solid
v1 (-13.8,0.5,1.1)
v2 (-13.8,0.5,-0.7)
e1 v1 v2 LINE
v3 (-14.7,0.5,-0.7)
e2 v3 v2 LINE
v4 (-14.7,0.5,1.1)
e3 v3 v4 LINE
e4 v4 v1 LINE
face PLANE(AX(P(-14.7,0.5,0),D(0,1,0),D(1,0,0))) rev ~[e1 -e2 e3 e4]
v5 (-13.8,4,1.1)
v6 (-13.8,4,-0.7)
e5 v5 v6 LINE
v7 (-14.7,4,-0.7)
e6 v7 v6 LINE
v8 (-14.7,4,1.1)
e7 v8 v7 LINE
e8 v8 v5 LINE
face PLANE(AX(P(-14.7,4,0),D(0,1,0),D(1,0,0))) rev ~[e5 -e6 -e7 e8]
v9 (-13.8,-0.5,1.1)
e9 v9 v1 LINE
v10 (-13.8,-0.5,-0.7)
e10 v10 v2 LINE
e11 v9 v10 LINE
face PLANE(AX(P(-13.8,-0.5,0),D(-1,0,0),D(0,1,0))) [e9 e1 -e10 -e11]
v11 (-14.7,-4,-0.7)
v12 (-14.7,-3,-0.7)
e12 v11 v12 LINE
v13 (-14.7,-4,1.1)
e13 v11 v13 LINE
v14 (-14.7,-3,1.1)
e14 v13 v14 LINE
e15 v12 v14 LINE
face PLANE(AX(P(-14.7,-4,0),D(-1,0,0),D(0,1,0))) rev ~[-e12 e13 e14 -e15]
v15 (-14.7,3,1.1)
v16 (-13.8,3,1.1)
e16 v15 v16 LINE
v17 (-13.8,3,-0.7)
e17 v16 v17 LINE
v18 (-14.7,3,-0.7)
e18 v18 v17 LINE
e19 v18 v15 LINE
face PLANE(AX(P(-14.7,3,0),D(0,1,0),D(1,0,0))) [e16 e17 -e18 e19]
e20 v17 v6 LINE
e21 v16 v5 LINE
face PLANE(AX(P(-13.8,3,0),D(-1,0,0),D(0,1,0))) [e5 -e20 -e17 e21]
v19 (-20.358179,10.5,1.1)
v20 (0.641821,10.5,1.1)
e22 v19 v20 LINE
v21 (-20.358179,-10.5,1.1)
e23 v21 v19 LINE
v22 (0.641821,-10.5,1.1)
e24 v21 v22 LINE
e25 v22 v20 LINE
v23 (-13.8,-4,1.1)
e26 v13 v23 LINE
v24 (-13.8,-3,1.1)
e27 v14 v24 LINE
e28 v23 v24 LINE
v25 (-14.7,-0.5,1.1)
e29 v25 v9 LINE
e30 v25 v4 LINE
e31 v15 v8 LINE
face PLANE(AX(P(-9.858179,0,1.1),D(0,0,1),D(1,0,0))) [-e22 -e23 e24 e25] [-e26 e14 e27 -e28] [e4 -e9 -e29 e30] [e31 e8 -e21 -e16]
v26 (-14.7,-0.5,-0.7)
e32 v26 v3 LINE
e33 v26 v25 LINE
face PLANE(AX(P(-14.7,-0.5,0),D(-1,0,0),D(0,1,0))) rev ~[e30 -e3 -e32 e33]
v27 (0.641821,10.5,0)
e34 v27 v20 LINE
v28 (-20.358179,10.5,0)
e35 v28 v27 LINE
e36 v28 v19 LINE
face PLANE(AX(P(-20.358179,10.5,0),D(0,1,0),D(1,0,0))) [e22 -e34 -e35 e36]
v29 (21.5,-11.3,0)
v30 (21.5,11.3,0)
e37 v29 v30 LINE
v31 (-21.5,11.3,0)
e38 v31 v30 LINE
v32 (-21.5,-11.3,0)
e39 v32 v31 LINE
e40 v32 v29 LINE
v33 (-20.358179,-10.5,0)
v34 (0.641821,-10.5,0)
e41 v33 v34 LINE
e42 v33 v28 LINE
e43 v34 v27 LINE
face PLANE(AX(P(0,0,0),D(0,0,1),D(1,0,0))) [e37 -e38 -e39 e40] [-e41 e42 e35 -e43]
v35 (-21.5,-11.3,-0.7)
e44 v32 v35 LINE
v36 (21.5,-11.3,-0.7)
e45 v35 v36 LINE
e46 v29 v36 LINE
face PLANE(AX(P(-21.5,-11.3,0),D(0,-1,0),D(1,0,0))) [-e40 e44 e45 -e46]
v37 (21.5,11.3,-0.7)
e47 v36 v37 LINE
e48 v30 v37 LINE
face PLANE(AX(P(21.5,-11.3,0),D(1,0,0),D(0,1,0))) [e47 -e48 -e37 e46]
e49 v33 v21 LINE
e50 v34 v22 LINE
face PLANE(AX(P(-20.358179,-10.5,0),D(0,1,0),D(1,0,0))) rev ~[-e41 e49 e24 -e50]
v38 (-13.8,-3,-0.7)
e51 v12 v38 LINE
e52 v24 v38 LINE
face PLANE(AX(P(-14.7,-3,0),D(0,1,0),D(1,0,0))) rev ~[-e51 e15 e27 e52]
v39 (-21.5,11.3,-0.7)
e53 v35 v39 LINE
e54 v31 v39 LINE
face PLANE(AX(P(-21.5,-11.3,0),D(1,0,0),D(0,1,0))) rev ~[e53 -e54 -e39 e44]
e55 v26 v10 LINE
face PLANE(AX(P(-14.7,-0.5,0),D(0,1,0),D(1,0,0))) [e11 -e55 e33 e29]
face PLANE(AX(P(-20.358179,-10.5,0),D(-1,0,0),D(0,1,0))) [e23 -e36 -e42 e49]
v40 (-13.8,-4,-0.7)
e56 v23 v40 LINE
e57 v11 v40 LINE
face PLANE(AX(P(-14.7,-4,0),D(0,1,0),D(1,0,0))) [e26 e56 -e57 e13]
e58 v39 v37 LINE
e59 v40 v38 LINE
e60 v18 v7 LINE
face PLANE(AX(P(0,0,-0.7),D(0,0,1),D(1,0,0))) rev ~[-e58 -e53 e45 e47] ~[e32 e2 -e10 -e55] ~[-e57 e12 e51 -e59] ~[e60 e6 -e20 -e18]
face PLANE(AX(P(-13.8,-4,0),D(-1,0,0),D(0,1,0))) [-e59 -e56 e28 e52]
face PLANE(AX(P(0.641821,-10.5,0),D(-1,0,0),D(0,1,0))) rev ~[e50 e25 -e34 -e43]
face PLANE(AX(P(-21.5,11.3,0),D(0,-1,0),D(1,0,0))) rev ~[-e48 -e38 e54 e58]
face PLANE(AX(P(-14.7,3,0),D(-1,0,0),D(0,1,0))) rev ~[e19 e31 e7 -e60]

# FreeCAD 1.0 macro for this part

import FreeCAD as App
import Part
import Sketcher


def add_polygon(sketch, points):
    """Adds a closed chain of lines whose ends are joined by coincident constraints."""
    first, n = sketch.GeometryCount, len(points)
    for a, b in zip(points, points[1:] + points[:1]):
        sketch.addGeometry(Part.LineSegment(App.Vector(*a, 0), App.Vector(*b, 0)), False)
    for i in range(n):
        sketch.addConstraint(Sketcher.Constraint("Coincident", first + i, 2, first + (i + 1) % n, 1))

doc = App.newDocument("Part")
body = doc.addObject("PartDesign::Body", "Body")

sketch1 = body.newObject("Sketcher::SketchObject", "Sketch")
sketch1.AttachmentSupport = (doc.getObject("XY_Plane"), [""])
sketch1.MapMode = "FlatFace"
add_polygon(sketch1, [(-21.5, 11.3), (-21.5, -11.3), (21.5, -11.3), (21.5, 11.3)])
add_polygon(sketch1, [(-13.8, -4), (-14.7, -4), (-14.7, -3), (-13.8, -3)])
add_polygon(sketch1, [(-13.8, -0.5), (-14.7, -0.5), (-14.7, 0.5), (-13.8, 0.5)])
add_polygon(sketch1, [(-13.8, 3), (-14.7, 3), (-14.7, 4), (-13.8, 4)])
sketch1.addConstraint(Sketcher.Constraint("Vertical", 0))
sketch1.addConstraint(Sketcher.Constraint("Horizontal", 1))
sketch1.addConstraint(Sketcher.Constraint("Vertical", 2))
sketch1.addConstraint(Sketcher.Constraint("Horizontal", 3))
sketch1.addConstraint(Sketcher.Constraint("Horizontal", 4))
sketch1.addConstraint(Sketcher.Constraint("Vertical", 5))
sketch1.addConstraint(Sketcher.Constraint("Horizontal", 6))
sketch1.addConstraint(Sketcher.Constraint("Vertical", 7))
sketch1.addConstraint(Sketcher.Constraint("Horizontal", 8))
sketch1.addConstraint(Sketcher.Constraint("Vertical", 9))
sketch1.addConstraint(Sketcher.Constraint("Horizontal", 10))
sketch1.addConstraint(Sketcher.Constraint("Vertical", 11))
sketch1.addConstraint(Sketcher.Constraint("Horizontal", 12))
sketch1.addConstraint(Sketcher.Constraint("Vertical", 13))
sketch1.addConstraint(Sketcher.Constraint("Horizontal", 14))
sketch1.addConstraint(Sketcher.Constraint("Vertical", 15))
sketch1.addConstraint(Sketcher.Constraint("Symmetric", 0, 2, 2, 2, -1, 1))
sketch1.addConstraint(Sketcher.Constraint("Symmetric", 5, 2, 12, 2, -1))
sketch1.addConstraint(Sketcher.Constraint("Symmetric", 7, 2, 14, 2, -1))
sketch1.addConstraint(Sketcher.Constraint("Vertical", 5, 2, 8, 2))
sketch1.addConstraint(Sketcher.Constraint("Vertical", 7, 2, 10, 2))
sketch1.addConstraint(Sketcher.Constraint("Equal", 7, 9))
sketch1.addConstraint(Sketcher.Constraint("DistanceX", 1, 1, 1, 2, 43.0))
sketch1.addConstraint(Sketcher.Constraint("DistanceY", 5, 1, 5, 2, 1.0))
sketch1.addConstraint(Sketcher.Constraint("DistanceX", 4, 2, 4, 1, 0.9))
sketch1.addConstraint(Sketcher.Constraint("DistanceY", 0, 2, 0, 1, 22.6))
sketch1.addConstraint(Sketcher.Constraint("DistanceY", 4, 2, -1, 1, 4.0))
sketch1.addConstraint(Sketcher.Constraint("DistanceX", 4, 2, -1, 1, 14.7))
sketch1.addConstraint(Sketcher.Constraint("DistanceY", 8, 2, -1, 1, 0.5))
pad1 = body.newObject("PartDesign::Pad", "Pad")
pad1.Profile = sketch1
pad1.Length = 0.7
pad1.Reversed = True

sketch2 = body.newObject("Sketcher::SketchObject", "Sketch001")
sketch2.AttachmentSupport = (doc.getObject("XY_Plane"), [""])
sketch2.MapMode = "FlatFace"
add_polygon(sketch2, [(-20.4, 10.5), (-20.4, -10.5), (0.6, -10.5), (0.6, 10.5)])
add_polygon(sketch2, [(-13.8, -4), (-14.7, -4), (-14.7, -3), (-13.8, -3)])
add_polygon(sketch2, [(-13.8, -0.5), (-14.7, -0.5), (-14.7, 0.5), (-13.8, 0.5)])
add_polygon(sketch2, [(-13.8, 3), (-14.7, 3), (-14.7, 4), (-13.8, 4)])
sketch2.addConstraint(Sketcher.Constraint("Vertical", 0))
sketch2.addConstraint(Sketcher.Constraint("Horizontal", 1))
sketch2.addConstraint(Sketcher.Constraint("Vertical", 2))
sketch2.addConstraint(Sketcher.Constraint("Horizontal", 3))
sketch2.addConstraint(Sketcher.Constraint("Horizontal", 4))
sketch2.addConstraint(Sketcher.Constraint("Vertical", 5))
sketch2.addConstraint(Sketcher.Constraint("Horizontal", 6))
sketch2.addConstraint(Sketcher.Constraint("Vertical", 7))
sketch2.addConstraint(Sketcher.Constraint("Horizontal", 8))
sketch2.addConstraint(Sketcher.Constraint("Vertical", 9))
sketch2.addConstraint(Sketcher.Constraint("Horizontal", 10))
sketch2.addConstraint(Sketcher.Constraint("Vertical", 11))
sketch2.addConstraint(Sketcher.Constraint("Horizontal", 12))
sketch2.addConstraint(Sketcher.Constraint("Vertical", 13))
sketch2.addConstraint(Sketcher.Constraint("Horizontal", 14))
sketch2.addConstraint(Sketcher.Constraint("Vertical", 15))
sketch2.addConstraint(Sketcher.Constraint("Symmetric", 5, 2, 12, 2, -1))
sketch2.addConstraint(Sketcher.Constraint("Symmetric", 7, 2, 14, 2, -1))
sketch2.addConstraint(Sketcher.Constraint("Vertical", 5, 2, 8, 2))
sketch2.addConstraint(Sketcher.Constraint("Vertical", 7, 2, 10, 2))
sketch2.addConstraint(Sketcher.Constraint("Equal", 3, 0))
sketch2.addConstraint(Sketcher.Constraint("Equal", 7, 9))
sketch2.addConstraint(Sketcher.Constraint("DistanceX", 1, 1, 1, 2, 21.0))
sketch2.addConstraint(Sketcher.Constraint("DistanceY", 5, 1, 5, 2, 1.0))
sketch2.addConstraint(Sketcher.Constraint("DistanceX", 4, 2, 4, 1, 0.9))
sketch2.addConstraint(Sketcher.Constraint("DistanceY", 4, 2, -1, 1, 4.0))
sketch2.addConstraint(Sketcher.Constraint("DistanceY", 0, 2, 8, 2, 10.0))
sketch2.addConstraint(Sketcher.Constraint("DistanceY", 0, 2, -1, 1, 10.5))
sketch2.addConstraint(Sketcher.Constraint("DistanceX", 4, 2, -1, 1, 14.7))
sketch2.addConstraint(Sketcher.Constraint("DistanceX", 0, 2, -1, 1, 20.358179))
pad2 = body.newObject("PartDesign::Pad", "Pad001")
pad2.Profile = sketch2
pad2.Length = 1.1

doc.recompute()
